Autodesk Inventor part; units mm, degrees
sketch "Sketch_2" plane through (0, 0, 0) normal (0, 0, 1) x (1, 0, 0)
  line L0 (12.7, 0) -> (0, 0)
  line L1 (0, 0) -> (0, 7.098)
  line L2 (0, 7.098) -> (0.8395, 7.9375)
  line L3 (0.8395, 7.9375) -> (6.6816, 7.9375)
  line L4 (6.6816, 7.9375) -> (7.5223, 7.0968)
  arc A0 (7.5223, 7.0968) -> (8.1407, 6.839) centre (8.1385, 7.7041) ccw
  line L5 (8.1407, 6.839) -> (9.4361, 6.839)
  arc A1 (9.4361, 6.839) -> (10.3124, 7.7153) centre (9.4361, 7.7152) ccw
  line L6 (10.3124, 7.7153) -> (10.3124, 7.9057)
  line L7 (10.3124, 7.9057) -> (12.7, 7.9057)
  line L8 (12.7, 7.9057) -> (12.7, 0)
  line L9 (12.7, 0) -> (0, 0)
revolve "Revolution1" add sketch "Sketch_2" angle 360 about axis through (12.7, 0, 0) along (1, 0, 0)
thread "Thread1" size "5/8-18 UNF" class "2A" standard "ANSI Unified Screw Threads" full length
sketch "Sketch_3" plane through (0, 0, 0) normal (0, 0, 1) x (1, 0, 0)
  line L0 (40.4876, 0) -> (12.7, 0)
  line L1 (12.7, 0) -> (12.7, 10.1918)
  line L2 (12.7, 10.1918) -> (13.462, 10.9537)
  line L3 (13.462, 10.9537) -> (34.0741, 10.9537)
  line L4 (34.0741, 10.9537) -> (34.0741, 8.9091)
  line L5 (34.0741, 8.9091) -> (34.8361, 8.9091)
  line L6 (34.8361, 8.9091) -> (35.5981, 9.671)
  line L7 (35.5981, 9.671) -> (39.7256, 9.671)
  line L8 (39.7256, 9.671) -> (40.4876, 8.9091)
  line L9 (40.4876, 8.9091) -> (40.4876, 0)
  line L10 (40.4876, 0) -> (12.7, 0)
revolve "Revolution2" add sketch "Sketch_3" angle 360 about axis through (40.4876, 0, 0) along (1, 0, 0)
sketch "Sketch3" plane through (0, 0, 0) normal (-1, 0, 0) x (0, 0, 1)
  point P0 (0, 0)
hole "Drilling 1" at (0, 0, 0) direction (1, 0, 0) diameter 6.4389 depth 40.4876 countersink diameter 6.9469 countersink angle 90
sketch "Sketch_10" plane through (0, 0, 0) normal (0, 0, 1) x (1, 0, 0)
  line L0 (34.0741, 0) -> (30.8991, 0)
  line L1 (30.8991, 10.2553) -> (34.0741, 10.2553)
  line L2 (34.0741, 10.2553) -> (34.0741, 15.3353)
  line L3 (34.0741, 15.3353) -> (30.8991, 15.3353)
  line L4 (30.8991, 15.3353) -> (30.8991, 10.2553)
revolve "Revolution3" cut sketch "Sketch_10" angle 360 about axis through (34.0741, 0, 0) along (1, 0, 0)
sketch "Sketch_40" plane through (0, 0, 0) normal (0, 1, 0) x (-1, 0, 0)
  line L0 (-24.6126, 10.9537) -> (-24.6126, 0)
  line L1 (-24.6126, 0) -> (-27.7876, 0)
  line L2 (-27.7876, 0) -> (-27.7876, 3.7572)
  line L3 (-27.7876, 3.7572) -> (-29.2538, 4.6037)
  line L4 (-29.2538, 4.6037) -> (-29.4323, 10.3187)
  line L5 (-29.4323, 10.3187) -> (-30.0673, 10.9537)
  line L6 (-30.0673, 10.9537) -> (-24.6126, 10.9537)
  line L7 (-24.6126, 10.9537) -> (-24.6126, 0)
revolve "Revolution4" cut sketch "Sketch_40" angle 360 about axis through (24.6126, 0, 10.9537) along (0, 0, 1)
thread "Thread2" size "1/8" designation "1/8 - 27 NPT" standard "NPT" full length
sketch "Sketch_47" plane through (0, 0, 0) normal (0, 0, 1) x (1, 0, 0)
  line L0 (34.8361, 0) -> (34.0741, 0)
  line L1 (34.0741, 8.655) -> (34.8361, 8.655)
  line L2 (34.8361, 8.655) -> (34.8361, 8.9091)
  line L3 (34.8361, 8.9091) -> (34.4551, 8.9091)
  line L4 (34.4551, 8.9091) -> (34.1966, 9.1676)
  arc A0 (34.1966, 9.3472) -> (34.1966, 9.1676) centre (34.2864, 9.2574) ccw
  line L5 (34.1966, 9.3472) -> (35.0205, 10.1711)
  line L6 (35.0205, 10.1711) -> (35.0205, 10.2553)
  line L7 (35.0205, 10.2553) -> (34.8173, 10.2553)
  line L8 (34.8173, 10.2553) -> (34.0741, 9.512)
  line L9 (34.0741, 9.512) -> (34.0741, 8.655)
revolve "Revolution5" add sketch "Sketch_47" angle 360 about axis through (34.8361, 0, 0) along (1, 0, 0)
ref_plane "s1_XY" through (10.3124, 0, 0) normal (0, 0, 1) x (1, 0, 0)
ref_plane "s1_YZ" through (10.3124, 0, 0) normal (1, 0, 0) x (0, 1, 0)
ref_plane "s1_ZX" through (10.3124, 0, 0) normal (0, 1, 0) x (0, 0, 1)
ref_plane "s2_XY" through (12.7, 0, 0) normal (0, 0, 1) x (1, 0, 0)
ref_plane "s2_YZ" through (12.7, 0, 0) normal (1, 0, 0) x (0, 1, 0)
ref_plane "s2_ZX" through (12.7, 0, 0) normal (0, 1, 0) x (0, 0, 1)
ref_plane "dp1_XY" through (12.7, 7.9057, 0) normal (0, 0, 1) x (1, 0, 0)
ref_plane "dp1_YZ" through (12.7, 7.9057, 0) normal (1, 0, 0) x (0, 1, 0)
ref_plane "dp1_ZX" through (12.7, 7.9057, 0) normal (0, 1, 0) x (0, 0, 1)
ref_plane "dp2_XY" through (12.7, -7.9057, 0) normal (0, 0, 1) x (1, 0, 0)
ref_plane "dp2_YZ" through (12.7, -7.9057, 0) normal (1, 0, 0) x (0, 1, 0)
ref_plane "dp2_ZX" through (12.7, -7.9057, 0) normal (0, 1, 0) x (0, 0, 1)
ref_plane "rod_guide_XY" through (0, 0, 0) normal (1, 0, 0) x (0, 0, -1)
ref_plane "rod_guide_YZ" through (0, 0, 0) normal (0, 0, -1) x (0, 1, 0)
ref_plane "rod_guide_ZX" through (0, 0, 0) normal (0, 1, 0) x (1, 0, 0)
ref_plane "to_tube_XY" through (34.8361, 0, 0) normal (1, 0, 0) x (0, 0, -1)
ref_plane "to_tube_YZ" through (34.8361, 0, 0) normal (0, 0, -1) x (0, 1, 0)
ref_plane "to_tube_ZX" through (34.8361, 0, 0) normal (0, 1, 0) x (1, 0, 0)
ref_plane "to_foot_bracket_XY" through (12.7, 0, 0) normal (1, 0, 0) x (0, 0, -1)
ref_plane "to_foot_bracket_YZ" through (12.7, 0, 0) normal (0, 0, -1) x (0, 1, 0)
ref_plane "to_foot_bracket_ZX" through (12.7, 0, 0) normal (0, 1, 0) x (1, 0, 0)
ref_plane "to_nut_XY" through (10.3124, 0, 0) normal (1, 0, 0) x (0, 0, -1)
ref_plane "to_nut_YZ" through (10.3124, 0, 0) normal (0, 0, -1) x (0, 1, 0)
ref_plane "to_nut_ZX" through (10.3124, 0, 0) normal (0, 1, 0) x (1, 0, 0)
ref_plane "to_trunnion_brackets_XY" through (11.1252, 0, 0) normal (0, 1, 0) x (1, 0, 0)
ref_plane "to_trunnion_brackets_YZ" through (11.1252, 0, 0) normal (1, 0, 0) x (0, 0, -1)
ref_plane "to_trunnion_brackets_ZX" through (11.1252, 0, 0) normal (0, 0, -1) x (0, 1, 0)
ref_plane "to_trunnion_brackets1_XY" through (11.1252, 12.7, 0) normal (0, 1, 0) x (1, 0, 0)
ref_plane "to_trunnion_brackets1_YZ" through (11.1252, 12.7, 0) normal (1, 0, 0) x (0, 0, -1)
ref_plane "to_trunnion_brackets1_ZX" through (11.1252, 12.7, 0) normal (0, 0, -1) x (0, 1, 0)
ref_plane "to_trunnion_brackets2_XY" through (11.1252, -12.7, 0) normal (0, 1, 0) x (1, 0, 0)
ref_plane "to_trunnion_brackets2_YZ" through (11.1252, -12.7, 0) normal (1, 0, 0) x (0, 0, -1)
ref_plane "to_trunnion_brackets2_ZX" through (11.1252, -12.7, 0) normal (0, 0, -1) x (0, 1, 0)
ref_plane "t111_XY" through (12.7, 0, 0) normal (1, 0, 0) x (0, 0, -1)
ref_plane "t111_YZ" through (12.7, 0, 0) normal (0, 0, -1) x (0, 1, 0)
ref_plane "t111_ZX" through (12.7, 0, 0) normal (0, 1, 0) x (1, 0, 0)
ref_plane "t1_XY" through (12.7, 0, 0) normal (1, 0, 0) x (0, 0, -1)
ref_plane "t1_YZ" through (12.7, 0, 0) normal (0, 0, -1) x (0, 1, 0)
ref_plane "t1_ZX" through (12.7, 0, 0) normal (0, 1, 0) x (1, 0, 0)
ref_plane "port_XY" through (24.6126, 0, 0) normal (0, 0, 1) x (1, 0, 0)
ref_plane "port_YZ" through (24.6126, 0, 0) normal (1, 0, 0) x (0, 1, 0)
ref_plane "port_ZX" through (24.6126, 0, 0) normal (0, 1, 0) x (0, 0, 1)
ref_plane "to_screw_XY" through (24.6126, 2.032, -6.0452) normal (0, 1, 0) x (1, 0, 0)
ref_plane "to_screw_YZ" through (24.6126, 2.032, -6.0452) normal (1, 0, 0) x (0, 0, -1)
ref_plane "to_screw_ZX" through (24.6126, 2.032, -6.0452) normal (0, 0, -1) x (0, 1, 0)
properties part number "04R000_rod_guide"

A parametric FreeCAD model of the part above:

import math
import FreeCAD as App
import Part
import Sketcher
from FreeCAD import Vector
Q = App.Units.Quantity

doc = App.newDocument("Part")
body = doc.addObject("PartDesign::Body", "Body")

sketch1 = doc.addObject("Sketcher::SketchObject", "Sketch")
body.addObject(sketch1)
sketch1.AttachmentSupport = (doc.XY_Plane, [""])
sketch1.MapMode = "FlatFace"
sketch1.addGeometry([
    Part.LineSegment(Vector(0, 0, 0), Vector(12.7, 0, 0)),
    Part.LineSegment(Vector(12.7, 0, 0), Vector(12.7, 7.91, 0)),
    Part.LineSegment(Vector(12.7, 7.91, 0), Vector(10.31, 7.91, 0)),
    Part.LineSegment(Vector(10.31, 7.91, 0), Vector(10.31, 7.72, 0)),
    Part.ArcOfCircle(Part.Circle(Vector(9.44, 7.72, 0), Vector(0, 0, 1), 0.88), math.radians(-90), math.radians(0)),
    Part.LineSegment(Vector(9.44, 6.84, 0), Vector(8.14, 6.84, 0)),
    Part.ArcOfCircle(Part.Circle(Vector(8.14, 7.7, 0), Vector(0, 0, 1), 0.87), math.radians(-135), math.radians(-90)),
    Part.LineSegment(Vector(7.52, 7.1, 0), Vector(6.68, 7.94, 0)),
    Part.LineSegment(Vector(6.68, 7.94, 0), Vector(0.84, 7.94, 0)),
    Part.LineSegment(Vector(0.84, 7.94, 0), Vector(0, 7.1, 0)),
    Part.LineSegment(Vector(0, 7.1, 0), Vector(0, 0, 0)),
], False)
sketch1.addConstraint([
    Sketcher.Constraint("Coincident", 0, 2, 1, 1),
    Sketcher.Constraint("Coincident", 1, 2, 2, 1),
    Sketcher.Constraint("Coincident", 2, 2, 3, 1),
    Sketcher.Constraint("Tangent", 3, 2, 4, 2),
    Sketcher.Constraint("Tangent", 4, 1, 5, 1),
    Sketcher.Constraint("Coincident", 5, 2, 6, 2),
    Sketcher.Constraint("Coincident", 6, 1, 7, 1),
    Sketcher.Constraint("Coincident", 7, 2, 8, 1),
    Sketcher.Constraint("Coincident", 8, 2, 9, 1),
    Sketcher.Constraint("Coincident", 9, 2, 10, 1),
    Sketcher.Constraint("Coincident", 10, 2, 0, 1),
    Sketcher.Constraint("Horizontal", 0),
    Sketcher.Constraint("Vertical", 1),
    Sketcher.Constraint("Horizontal", 2),
    Sketcher.Constraint("Vertical", 3),
    Sketcher.Constraint("Horizontal", 5),
    Sketcher.Constraint("Horizontal", 8),
    Sketcher.Constraint("Vertical", 10),
    Sketcher.Constraint("Coincident", 10, 2, -1, 1),
    Sketcher.Constraint("Perpendicular", 7, 9),
    Sketcher.Constraint("DistanceX", 0, 1, 0, 2, Q("0.5 in")),
    Sketcher.Constraint("Angle", 7, Q("135 deg")),
    Sketcher.Constraint("DistanceX", 8, 2, 8, 1, Q("0.23 in")),
    Sketcher.Constraint("Radius", 4, Q("0.0345 in")),
    Sketcher.Constraint("DistanceX", 2, 2, 2, 1, Q("0.094 in")),
    Sketcher.Constraint("DistanceX", 5, 2, 5, 1, Q("0.051 in")),
    Sketcher.Constraint("Radius", 6, 0.8652),
    Sketcher.Constraint("DistanceY", 3, 2, 3, 1, Q("0.0075 in")),
    Sketcher.Constraint("DistanceY", -1, 1, 7, 2, Q("0.3125 in")),
    Sketcher.Constraint("Distance", 7, Q("0.0468 in")),
    Sketcher.Constraint("DistanceY", 1, 1, 1, 2, 7.9057),
    Sketcher.Constraint("DistanceY", 10, 2, 10, 1, 7.098),
])
revolution = doc.addObject("PartDesign::Revolution", "Revolution")
body.addObject(revolution)
revolution.Profile = sketch1
revolution.ReferenceAxis = (sketch1, ["H_Axis"])
revolution.Angle = 360

sketch2 = doc.addObject("Sketcher::SketchObject", "Sketch001")
body.addObject(sketch2)
sketch2.AttachmentSupport = (doc.XY_Plane, [""])
sketch2.MapMode = "FlatFace"
sketch2.addGeometry([
    Part.LineSegment(Vector(12.7, 0, 0), Vector(40.5, 0, 0)),
    Part.LineSegment(Vector(40.5, 0, 0), Vector(40.5, 8.9, 0)),
    Part.LineSegment(Vector(40.5, 8.9, 0), Vector(39.7, 9.7, 0)),
    Part.LineSegment(Vector(39.7, 9.7, 0), Vector(35.6, 9.7, 0)),
    Part.LineSegment(Vector(35.6, 9.7, 0), Vector(34.8, 8.9, 0)),
    Part.LineSegment(Vector(34.8, 8.9, 0), Vector(34.1, 8.9, 0)),
    Part.LineSegment(Vector(34.1, 8.9, 0), Vector(34.1, 11, 0)),
    Part.LineSegment(Vector(34.1, 11, 0), Vector(13.5, 11, 0)),
    Part.LineSegment(Vector(13.5, 11, 0), Vector(12.7, 10.2, 0)),
    Part.LineSegment(Vector(12.7, 10.2, 0), Vector(12.7, 0, 0)),
], False)
sketch2.addConstraint([
    Sketcher.Constraint("Coincident", 0, 2, 1, 1),
    Sketcher.Constraint("Coincident", 1, 2, 2, 1),
    Sketcher.Constraint("Coincident", 2, 2, 3, 1),
    Sketcher.Constraint("Coincident", 3, 2, 4, 1),
    Sketcher.Constraint("Coincident", 4, 2, 5, 1),
    Sketcher.Constraint("Coincident", 5, 2, 6, 1),
    Sketcher.Constraint("Coincident", 6, 2, 7, 1),
    Sketcher.Constraint("Coincident", 7, 2, 8, 1),
    Sketcher.Constraint("Coincident", 8, 2, 9, 1),
    Sketcher.Constraint("Coincident", 9, 2, 0, 1),
    Sketcher.Constraint("Horizontal", 0),
    Sketcher.Constraint("Vertical", 1),
    Sketcher.Constraint("Horizontal", 3),
    Sketcher.Constraint("Horizontal", 5),
    Sketcher.Constraint("Vertical", 6),
    Sketcher.Constraint("Horizontal", 7),
    Sketcher.Constraint("Vertical", 9),
    Sketcher.Constraint("PointOnObject", 0, 2, -1),
    Sketcher.Constraint("Perpendicular", 2, 4),
    Sketcher.Constraint("Parallel", 4, 8),
    Sketcher.Constraint("Horizontal", 1, 2, 4, 2),
    Sketcher.Constraint("Equal", 2, 4),
    Sketcher.Constraint("Equal", 4, 8),
    Sketcher.Constraint("DistanceX", 5, 2, 5, 1, Q("0.03 in")),
    Sketcher.Constraint("DistanceX", -1, 1, 8, 2, Q("0.5 in")),
    Sketcher.Constraint("DistanceX", 0, 1, 0, 2, Q("1.094 in")),
    Sketcher.Constraint("DistanceX", -1, 1, 7, 2, Q("0.53 in")),
    Sketcher.Constraint("DistanceX", 3, 2, 3, 1, Q("0.1625 in")),
    Sketcher.Constraint("DistanceY", 6, 1, 6, 2, Q("0.0805 in")),
    Sketcher.Constraint("DistanceY", 1, 1, 1, 2, 8.909),
])
revolution2 = doc.addObject("PartDesign::Revolution", "Revolution001")
body.addObject(revolution2)
revolution2.Profile = sketch2
revolution2.ReferenceAxis = (sketch2, ["H_Axis"])
revolution2.Angle = 360

sketch3 = doc.addObject("Sketcher::SketchObject", "Sketch002")
body.addObject(sketch3)
sketch3.AttachmentSupport = (doc.YZ_Plane, [""])
sketch3.MapMode = "FlatFace"
sketch3.addGeometry(Part.Circle(Vector(0, 0, 0), Vector(0, 0, 1), 3.2), False)
sketch3.addConstraint([
    Sketcher.Constraint("Coincident", 0, 3, -1, 1),
    Sketcher.Constraint("Diameter", 0, Q("0.2535 in")),
])
doc.recompute()
hole = doc.addObject("PartDesign::Hole", "Hole")
body.addObject(hole)
hole.Profile = sketch3
hole.ThreadType = "None"
hole.Diameter = Q("0.2535 in")
hole.DepthType = "Dimension"
hole.Depth = Q("1.594 in")
hole.DrillPoint = "Flat"
hole.HoleCutType = "Countersink"
hole.HoleCutDiameter = Q("0.2735 in")
hole.HoleCutCountersinkAngle = 90
hole.Reversed = True

sketch4 = doc.addObject("Sketcher::SketchObject", "Sketch003")
body.addObject(sketch4)
sketch4.AttachmentSupport = (doc.XY_Plane, [""])
sketch4.MapMode = "FlatFace"
sketch4.addGeometry([
    Part.LineSegment(Vector(30.9, 15.3, 0), Vector(30.9, 10.3, 0)),
    Part.LineSegment(Vector(30.9, 10.3, 0), Vector(34.1, 10.3, 0)),
    Part.LineSegment(Vector(34.1, 10.3, 0), Vector(34.1, 15.3, 0)),
    Part.LineSegment(Vector(34.1, 15.3, 0), Vector(30.9, 15.3, 0)),
], False)
sketch4.addConstraint([
    Sketcher.Constraint("Coincident", 0, 2, 1, 1),
    Sketcher.Constraint("Coincident", 1, 2, 2, 1),
    Sketcher.Constraint("Coincident", 2, 2, 3, 1),
    Sketcher.Constraint("Coincident", 3, 2, 0, 1),
    Sketcher.Constraint("Vertical", 0),
    Sketcher.Constraint("Horizontal", 1),
    Sketcher.Constraint("Vertical", 2),
    Sketcher.Constraint("Horizontal", 3),
    Sketcher.Constraint("DistanceY", 0, 2, 0, 1, Q("0.2 in")),
    Sketcher.Constraint("DistanceX", 1, 1, 1, 2, Q("0.125 in")),
    Sketcher.Constraint("DistanceX", -1, 1, 0, 2, Q("1.2165 in")),
    Sketcher.Constraint("DistanceY", -1, 1, 0, 2, 10.2553),
])
groove = doc.addObject("PartDesign::Groove", "Groove")
body.addObject(groove)
groove.Profile = sketch4
groove.ReferenceAxis = (sketch4, ["H_Axis"])
groove.Angle = 360

sketch5 = doc.addObject("Sketcher::SketchObject", "Sketch004")
body.addObject(sketch5)
sketch5.AttachmentSupport = (doc.XZ_Plane, [""])
sketch5.MapMode = "FlatFace"
sketch5.addGeometry([
    Part.LineSegment(Vector(24.6, 0, 0), Vector(24.6, 11, 0)),
    Part.LineSegment(Vector(24.6, 11, 0), Vector(30.1, 11, 0)),
    Part.LineSegment(Vector(30.1, 11, 0), Vector(29.4, 10.3, 0)),
    Part.LineSegment(Vector(29.4, 10.3, 0), Vector(29.3, 4.6, 0)),
    Part.LineSegment(Vector(29.3, 4.6, 0), Vector(27.8, 3.8, 0)),
    Part.LineSegment(Vector(27.8, 3.8, 0), Vector(27.8, 0, 0)),
    Part.LineSegment(Vector(27.8, 0, 0), Vector(24.6, 0, 0)),
], False)
sketch5.addGeometry(Part.LineSegment(Vector(24.6, 0, 0), Vector(24.6, 11, 0)), True)
sketch5.addConstraint([
    Sketcher.Constraint("Coincident", 0, 2, 1, 1),
    Sketcher.Constraint("Coincident", 1, 2, 2, 1),
    Sketcher.Constraint("Coincident", 2, 2, 3, 1),
    Sketcher.Constraint("Coincident", 3, 2, 4, 1),
    Sketcher.Constraint("Coincident", 4, 2, 5, 1),
    Sketcher.Constraint("Coincident", 5, 2, 6, 1),
    Sketcher.Constraint("Coincident", 6, 2, 0, 1),
    Sketcher.Constraint("Vertical", 0),
    Sketcher.Constraint("Horizontal", 1),
    Sketcher.Constraint("Vertical", 5),
    Sketcher.Constraint("Horizontal", 6),
    Sketcher.Constraint("Vertical", 7),
    Sketcher.Constraint("Coincident", 7, 1, 6, 2),
    Sketcher.Constraint("PointOnObject", 5, 2, -1),
    Sketcher.Constraint("Horizontal", 1, 2, 7, 2),
    Sketcher.Constraint("Angle", 2, Q("-135 deg")),
    Sketcher.Constraint("Angle", 4, Q("-150.0003 deg")),
    Sketcher.Constraint("DistanceX", 6, 2, 6, 1, Q("0.125 in")),
    Sketcher.Constraint("Angle", 3, Q("-91.789 deg")),
    Sketcher.Constraint("DistanceY", 3, 2, 1, 2, Q("0.25 in")),
    Sketcher.Constraint("DistanceX", -1, 1, 0, 2, Q("0.969 in")),
    Sketcher.Constraint("DistanceY", -1, 1, 2, 2, Q("0.406248 in")),
    Sketcher.Constraint("DistanceX", 2, 2, 1, 2, Q("0.025 in")),
    Sketcher.Constraint("DistanceX", 1, 1, 1, 2, 5.4547),
])
groove2 = doc.addObject("PartDesign::Groove", "Groove001")
body.addObject(groove2)
groove2.Profile = sketch5
groove2.ReferenceAxis = (sketch5, ["Axis0"])
groove2.Angle = 360

sketch6 = doc.addObject("Sketcher::SketchObject", "Sketch005")
body.addObject(sketch6)
sketch6.AttachmentSupport = (doc.XY_Plane, [""])
sketch6.MapMode = "FlatFace"
sketch6.addGeometry([
    Part.LineSegment(Vector(34.07, 9.51, 0), Vector(34.07, 8.65, 0)),
    Part.LineSegment(Vector(34.07, 8.65, 0), Vector(34.84, 8.65, 0)),
    Part.LineSegment(Vector(34.84, 8.65, 0), Vector(34.84, 8.91, 0)),
    Part.LineSegment(Vector(34.84, 8.91, 0), Vector(34.46, 8.91, 0)),
    Part.LineSegment(Vector(34.46, 8.91, 0), Vector(34.2, 9.17, 0)),
    Part.ArcOfCircle(Part.Circle(Vector(34.29, 9.26, 0), Vector(0, 0, 1), 0.13), math.radians(135), math.radians(225)),
    Part.LineSegment(Vector(34.2, 9.35, 0), Vector(35.02, 10.17, 0)),
    Part.LineSegment(Vector(35.02, 10.17, 0), Vector(35.02, 10.26, 0)),
    Part.LineSegment(Vector(35.02, 10.26, 0), Vector(34.82, 10.26, 0)),
    Part.LineSegment(Vector(34.82, 10.26, 0), Vector(34.07, 9.51, 0)),
], False)
sketch6.addConstraint([
    Sketcher.Constraint("Coincident", 0, 2, 1, 1),
    Sketcher.Constraint("Coincident", 1, 2, 2, 1),
    Sketcher.Constraint("Coincident", 2, 2, 3, 1),
    Sketcher.Constraint("Coincident", 3, 2, 4, 1),
    Sketcher.Constraint("Tangent", 4, 2, 5, 2),
    Sketcher.Constraint("Tangent", 5, 1, 6, 1),
    Sketcher.Constraint("Coincident", 6, 2, 7, 1),
    Sketcher.Constraint("Coincident", 7, 2, 8, 1),
    Sketcher.Constraint("Coincident", 8, 2, 9, 1),
    Sketcher.Constraint("Coincident", 9, 2, 0, 1),
    Sketcher.Constraint("Vertical", 0),
    Sketcher.Constraint("Horizontal", 1),
    Sketcher.Constraint("Vertical", 2),
    Sketcher.Constraint("Horizontal", 3),
    Sketcher.Constraint("Vertical", 7),
    Sketcher.Constraint("Horizontal", 8),
    Sketcher.Constraint("Perpendicular", 4, 6),
    Sketcher.Constraint("Parallel", 6, 9),
    Sketcher.Constraint("Vertical", 4, 2, 5, 1),
    Sketcher.Constraint("Radius", 5, Q("0.005 in")),
    Sketcher.Constraint("DistanceX", 1, 1, 1, 2, Q("0.03 in")),
    Sketcher.Constraint("DistanceY", 2, 1, 2, 2, Q("0.01 in")),
    Sketcher.Constraint("DistanceX", 3, 2, 3, 1, Q("0.015 in")),
    Sketcher.Constraint("DistanceX", 8, 2, 8, 1, Q("0.008 in")),
    Sketcher.Constraint("DistanceY", -1, 1, 5, 1, Q("0.368 in")),
    Sketcher.Constraint("DistanceY", 2, 2, 7, 2, Q("0.053 in")),
    Sketcher.Constraint("Distance", 4, Q("0.0144 in")),
    Sketcher.Constraint("DistanceY", 0, 2, 0, 1, 0.857),
    Sketcher.Constraint("DistanceX", -1, 1, 0, 2, Q("1.3415 in")),
])
revolution3 = doc.addObject("PartDesign::Revolution", "Revolution002")
body.addObject(revolution3)
revolution3.Profile = sketch6
revolution3.ReferenceAxis = (sketch6, ["H_Axis"])
revolution3.Angle = 360

doc.recompute()
